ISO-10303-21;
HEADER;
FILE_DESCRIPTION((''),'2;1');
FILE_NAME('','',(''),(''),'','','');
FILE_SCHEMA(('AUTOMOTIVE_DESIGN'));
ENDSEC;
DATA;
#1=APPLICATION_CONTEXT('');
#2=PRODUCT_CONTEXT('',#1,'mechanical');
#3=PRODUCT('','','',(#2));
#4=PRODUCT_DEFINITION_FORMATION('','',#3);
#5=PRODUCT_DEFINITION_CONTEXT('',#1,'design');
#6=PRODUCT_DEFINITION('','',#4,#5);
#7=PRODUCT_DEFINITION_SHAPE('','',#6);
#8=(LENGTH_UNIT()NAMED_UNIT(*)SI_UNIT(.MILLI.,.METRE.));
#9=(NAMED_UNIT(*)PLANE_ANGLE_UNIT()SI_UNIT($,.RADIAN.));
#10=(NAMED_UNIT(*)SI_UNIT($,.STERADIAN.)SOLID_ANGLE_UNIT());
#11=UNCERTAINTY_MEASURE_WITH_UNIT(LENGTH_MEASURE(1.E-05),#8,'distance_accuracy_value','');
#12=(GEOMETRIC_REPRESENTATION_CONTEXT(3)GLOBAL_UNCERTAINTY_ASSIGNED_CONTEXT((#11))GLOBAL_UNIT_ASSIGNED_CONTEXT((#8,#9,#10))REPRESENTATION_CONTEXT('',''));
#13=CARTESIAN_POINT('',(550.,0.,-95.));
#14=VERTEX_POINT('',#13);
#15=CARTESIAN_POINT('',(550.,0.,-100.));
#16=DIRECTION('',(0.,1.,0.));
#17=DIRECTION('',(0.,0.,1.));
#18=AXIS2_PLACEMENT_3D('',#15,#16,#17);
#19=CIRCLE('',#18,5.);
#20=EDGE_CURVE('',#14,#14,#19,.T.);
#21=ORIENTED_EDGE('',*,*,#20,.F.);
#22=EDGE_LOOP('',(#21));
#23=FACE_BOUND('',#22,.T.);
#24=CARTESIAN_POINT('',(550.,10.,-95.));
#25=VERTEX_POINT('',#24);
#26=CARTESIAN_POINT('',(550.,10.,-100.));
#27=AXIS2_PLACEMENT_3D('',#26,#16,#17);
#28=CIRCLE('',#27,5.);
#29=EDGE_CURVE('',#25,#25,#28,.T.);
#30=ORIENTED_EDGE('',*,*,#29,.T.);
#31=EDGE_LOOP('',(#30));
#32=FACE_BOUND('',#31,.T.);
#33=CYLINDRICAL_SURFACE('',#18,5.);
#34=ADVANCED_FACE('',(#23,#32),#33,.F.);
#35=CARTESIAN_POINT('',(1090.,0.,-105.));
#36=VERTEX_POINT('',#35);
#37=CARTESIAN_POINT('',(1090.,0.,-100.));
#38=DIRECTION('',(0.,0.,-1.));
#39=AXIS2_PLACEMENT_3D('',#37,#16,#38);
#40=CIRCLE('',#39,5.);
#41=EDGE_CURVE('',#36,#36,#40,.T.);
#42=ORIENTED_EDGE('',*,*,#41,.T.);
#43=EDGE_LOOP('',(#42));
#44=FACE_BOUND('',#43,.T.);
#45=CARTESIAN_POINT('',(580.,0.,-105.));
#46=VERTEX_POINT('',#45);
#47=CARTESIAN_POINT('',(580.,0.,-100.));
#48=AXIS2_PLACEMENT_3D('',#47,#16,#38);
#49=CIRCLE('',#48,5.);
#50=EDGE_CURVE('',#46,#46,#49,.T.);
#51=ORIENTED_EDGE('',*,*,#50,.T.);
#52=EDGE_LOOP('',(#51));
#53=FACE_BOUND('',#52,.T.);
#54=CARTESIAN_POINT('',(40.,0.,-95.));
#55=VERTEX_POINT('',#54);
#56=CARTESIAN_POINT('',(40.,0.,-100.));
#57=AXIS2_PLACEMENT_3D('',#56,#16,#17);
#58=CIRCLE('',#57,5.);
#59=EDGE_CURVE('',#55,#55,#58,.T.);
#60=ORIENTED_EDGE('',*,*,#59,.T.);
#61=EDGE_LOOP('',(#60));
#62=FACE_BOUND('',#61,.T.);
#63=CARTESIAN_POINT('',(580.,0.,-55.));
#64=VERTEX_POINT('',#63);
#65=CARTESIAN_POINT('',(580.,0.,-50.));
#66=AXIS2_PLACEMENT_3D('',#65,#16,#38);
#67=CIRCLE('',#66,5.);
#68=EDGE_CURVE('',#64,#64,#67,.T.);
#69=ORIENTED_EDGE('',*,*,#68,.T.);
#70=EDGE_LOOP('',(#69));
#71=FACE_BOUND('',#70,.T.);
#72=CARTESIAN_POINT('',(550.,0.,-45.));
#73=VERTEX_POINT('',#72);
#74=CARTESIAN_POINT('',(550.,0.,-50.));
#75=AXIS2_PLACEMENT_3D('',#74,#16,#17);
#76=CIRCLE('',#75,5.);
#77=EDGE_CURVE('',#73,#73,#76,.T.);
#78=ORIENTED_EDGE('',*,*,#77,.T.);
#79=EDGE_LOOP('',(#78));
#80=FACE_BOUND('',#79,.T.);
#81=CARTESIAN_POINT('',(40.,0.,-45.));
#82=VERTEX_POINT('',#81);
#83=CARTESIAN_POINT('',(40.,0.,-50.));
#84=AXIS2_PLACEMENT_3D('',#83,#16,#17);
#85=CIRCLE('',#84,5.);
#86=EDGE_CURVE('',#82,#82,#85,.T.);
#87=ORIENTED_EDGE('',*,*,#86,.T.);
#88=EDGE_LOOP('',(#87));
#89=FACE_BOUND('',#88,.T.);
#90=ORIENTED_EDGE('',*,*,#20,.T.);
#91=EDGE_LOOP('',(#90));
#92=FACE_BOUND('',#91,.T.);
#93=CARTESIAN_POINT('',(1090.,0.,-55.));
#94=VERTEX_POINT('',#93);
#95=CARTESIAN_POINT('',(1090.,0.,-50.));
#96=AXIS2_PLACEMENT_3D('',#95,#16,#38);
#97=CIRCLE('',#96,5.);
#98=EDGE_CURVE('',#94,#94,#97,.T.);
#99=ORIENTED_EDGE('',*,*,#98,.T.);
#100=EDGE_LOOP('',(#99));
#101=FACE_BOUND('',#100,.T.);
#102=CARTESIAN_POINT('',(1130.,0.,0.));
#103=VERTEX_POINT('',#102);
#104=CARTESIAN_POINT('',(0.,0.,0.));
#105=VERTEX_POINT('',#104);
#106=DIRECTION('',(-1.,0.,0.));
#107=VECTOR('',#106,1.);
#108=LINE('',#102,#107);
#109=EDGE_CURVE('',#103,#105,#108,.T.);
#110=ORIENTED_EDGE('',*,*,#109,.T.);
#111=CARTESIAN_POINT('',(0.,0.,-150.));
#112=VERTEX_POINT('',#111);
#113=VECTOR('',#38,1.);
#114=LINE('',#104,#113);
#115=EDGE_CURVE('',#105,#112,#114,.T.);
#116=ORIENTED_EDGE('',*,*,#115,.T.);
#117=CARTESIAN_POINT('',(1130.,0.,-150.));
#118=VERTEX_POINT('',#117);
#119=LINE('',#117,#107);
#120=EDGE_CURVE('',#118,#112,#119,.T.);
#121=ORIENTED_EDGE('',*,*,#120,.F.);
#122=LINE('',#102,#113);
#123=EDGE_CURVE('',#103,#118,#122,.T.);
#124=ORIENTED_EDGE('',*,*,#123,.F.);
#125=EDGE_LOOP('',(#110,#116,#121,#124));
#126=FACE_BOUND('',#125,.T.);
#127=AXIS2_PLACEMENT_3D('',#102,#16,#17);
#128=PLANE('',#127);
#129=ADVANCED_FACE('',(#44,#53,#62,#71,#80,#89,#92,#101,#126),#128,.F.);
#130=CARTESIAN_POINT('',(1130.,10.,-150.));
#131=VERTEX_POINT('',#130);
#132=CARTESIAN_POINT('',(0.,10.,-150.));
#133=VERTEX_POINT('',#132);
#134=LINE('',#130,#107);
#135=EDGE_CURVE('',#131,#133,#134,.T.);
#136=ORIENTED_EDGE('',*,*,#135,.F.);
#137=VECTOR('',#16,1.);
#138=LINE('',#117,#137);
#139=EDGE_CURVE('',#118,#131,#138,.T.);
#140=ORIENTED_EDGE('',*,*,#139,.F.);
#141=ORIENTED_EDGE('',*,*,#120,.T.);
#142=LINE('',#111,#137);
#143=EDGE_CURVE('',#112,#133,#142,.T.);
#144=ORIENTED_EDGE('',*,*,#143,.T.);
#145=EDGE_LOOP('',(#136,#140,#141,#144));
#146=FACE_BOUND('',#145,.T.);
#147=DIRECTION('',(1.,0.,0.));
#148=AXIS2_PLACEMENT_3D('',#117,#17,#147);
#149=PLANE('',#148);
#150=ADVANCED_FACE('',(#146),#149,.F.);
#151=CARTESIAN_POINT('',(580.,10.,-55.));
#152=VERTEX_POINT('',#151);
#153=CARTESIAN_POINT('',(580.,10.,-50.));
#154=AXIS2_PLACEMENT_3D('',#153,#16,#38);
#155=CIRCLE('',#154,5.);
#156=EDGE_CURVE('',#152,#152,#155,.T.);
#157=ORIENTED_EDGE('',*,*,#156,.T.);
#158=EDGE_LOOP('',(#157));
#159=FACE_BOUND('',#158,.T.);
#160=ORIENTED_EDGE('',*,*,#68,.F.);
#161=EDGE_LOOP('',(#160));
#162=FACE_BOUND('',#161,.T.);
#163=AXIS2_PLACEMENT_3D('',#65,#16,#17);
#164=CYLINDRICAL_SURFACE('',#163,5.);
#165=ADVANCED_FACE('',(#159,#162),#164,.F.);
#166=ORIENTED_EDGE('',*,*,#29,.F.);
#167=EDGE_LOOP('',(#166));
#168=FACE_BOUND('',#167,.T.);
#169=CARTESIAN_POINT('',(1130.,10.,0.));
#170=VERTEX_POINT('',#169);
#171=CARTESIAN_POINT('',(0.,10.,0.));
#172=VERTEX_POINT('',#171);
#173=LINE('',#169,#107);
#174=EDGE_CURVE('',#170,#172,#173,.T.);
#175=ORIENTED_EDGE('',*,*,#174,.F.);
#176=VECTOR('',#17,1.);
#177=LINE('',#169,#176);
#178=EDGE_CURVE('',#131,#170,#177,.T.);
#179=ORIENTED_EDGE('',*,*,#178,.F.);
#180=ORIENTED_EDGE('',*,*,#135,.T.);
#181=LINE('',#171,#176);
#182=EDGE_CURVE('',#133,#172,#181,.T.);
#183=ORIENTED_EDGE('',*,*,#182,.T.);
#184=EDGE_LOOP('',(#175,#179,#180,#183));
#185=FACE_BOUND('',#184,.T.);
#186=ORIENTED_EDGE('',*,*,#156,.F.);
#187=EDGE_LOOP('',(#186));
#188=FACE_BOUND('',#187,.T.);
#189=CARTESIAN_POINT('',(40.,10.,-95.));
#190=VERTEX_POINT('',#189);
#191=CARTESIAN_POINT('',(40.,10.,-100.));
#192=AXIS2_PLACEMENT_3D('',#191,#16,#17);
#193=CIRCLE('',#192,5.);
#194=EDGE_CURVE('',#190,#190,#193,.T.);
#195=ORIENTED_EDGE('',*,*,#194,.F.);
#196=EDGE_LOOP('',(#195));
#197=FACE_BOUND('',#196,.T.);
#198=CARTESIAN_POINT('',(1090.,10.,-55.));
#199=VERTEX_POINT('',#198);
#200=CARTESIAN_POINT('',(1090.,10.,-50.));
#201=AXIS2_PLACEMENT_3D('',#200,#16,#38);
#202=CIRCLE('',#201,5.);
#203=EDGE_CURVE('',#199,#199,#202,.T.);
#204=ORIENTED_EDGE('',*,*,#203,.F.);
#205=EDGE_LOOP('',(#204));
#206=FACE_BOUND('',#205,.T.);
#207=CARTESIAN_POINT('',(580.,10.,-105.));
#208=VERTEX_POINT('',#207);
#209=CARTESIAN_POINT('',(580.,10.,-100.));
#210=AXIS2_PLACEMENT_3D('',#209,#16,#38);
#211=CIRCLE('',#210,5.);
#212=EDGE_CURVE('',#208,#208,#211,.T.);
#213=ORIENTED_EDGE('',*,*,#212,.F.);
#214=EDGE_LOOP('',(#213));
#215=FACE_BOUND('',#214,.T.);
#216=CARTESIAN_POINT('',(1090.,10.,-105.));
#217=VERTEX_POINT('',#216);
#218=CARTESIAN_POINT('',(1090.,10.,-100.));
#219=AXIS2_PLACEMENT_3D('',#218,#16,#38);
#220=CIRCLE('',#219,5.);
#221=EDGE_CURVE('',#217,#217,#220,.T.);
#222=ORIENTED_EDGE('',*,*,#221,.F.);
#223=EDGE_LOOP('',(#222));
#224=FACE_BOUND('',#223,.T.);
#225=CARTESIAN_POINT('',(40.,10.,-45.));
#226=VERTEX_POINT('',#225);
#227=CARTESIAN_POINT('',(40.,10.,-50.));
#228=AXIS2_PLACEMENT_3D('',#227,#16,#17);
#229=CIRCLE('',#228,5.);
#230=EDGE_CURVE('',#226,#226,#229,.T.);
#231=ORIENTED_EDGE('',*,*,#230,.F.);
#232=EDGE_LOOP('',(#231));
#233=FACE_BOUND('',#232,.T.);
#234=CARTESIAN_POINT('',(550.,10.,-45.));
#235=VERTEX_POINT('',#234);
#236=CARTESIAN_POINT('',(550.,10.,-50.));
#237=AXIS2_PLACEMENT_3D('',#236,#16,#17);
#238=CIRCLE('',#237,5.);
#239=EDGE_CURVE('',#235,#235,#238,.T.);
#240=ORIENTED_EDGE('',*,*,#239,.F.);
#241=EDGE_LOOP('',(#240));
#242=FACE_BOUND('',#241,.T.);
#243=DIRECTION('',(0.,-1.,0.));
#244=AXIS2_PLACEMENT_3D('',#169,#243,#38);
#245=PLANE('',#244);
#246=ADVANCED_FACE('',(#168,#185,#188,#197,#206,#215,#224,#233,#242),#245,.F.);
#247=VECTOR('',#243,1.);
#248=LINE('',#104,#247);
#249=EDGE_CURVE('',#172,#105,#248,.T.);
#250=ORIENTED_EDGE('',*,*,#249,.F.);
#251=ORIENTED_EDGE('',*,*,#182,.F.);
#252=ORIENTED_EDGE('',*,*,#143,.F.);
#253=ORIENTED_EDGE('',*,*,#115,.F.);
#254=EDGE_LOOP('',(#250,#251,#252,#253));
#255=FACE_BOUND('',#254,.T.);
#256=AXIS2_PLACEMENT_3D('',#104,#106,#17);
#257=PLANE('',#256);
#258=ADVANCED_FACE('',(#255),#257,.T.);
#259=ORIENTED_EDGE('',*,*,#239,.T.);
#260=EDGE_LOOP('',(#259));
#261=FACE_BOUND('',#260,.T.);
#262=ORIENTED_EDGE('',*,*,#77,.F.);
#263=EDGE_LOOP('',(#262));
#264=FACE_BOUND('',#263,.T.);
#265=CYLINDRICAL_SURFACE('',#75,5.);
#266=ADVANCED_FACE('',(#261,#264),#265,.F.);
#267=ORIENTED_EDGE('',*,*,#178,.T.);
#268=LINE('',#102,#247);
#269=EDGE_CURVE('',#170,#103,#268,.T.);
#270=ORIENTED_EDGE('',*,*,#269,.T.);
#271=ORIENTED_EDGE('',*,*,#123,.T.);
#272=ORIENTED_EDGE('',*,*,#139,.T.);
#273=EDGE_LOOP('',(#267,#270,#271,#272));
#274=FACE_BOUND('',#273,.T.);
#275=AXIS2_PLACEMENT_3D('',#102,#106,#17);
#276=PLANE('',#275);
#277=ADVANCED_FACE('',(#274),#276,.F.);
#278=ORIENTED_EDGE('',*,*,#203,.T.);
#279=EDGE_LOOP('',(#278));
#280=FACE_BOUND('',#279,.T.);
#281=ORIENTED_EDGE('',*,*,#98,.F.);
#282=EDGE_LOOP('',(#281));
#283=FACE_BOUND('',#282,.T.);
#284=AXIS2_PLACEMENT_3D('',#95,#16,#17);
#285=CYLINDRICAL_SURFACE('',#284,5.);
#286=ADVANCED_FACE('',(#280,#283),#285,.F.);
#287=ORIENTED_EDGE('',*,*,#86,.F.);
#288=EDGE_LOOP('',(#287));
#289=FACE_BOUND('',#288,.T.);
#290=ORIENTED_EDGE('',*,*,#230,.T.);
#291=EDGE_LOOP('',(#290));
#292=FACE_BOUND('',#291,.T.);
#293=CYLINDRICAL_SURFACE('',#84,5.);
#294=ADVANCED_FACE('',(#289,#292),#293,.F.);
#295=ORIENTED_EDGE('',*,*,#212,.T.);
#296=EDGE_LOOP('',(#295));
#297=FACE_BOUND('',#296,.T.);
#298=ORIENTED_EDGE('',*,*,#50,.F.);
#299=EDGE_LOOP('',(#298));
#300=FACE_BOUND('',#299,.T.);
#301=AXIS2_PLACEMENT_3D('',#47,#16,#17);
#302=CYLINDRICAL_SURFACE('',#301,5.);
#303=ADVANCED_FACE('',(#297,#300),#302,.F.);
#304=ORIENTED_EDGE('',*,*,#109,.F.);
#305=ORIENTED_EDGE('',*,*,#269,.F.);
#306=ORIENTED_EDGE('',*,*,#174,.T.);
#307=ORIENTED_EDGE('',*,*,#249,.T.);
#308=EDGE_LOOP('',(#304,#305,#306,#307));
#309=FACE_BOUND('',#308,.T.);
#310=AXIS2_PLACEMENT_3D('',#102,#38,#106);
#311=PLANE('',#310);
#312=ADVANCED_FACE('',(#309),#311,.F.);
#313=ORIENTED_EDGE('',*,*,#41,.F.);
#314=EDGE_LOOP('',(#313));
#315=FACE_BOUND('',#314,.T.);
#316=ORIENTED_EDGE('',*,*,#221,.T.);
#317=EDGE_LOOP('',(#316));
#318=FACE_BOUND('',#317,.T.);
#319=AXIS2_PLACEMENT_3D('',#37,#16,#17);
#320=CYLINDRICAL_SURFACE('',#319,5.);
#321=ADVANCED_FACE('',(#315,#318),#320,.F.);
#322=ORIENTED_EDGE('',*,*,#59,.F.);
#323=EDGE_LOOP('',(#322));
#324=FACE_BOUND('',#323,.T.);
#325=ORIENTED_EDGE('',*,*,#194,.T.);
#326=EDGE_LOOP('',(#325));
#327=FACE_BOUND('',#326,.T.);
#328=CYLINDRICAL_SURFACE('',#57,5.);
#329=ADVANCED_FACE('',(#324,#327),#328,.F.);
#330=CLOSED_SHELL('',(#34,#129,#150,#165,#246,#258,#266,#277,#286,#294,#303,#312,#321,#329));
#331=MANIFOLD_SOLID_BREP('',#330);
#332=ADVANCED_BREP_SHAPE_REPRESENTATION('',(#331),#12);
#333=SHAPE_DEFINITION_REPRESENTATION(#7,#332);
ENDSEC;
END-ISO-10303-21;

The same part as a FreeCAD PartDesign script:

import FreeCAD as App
import Part
import Sketcher


def add_polygon(sketch, points):
    """Adds a closed chain of lines whose ends are joined by coincident constraints."""
    first, n = sketch.GeometryCount, len(points)
    for a, b in zip(points, points[1:] + points[:1]):
        sketch.addGeometry(Part.LineSegment(App.Vector(*a, 0), App.Vector(*b, 0)), False)
    for i in range(n):
        sketch.addConstraint(Sketcher.Constraint("Coincident", first + i, 2, first + (i + 1) % n, 1))

doc = App.newDocument("Part")
body = doc.addObject("PartDesign::Body", "Body")

# Sketch on YZ plane
sketch1 = doc.addObject("Sketcher::SketchObject", "Sketch")
body.addObject(sketch1)
sketch1.AttachmentSupport = (doc.YZ_Plane, [""])
sketch1.MapMode = "FlatFace"
add_polygon(sketch1, [(10, 0), (0, 0), (0, -150), (10, -150)])  # lines 0-3
sketch1.addConstraint([
    Sketcher.Constraint("Horizontal", 0),
    Sketcher.Constraint("Vertical", 1),
    Sketcher.Constraint("Horizontal", 2),
    Sketcher.Constraint("Vertical", 3),
    Sketcher.Constraint("Coincident", 0, 2, -1, 1),
    Sketcher.Constraint("DistanceX", 0, 2, 0, 1, 10.0),
    Sketcher.Constraint("DistanceY", 1, 2, 1, 1, 150.0),
])
pad1 = doc.addObject("PartDesign::Pad", "Pad")
body.addObject(pad1)
pad1.Profile = sketch1
pad1.Length = 1130

# Sketch on XZ plane
sketch2 = doc.addObject("Sketcher::SketchObject", "Sketch001")
body.addObject(sketch2)
sketch2.AttachmentSupport = (doc.XZ_Plane, [""])
sketch2.MapMode = "FlatFace"
sketch2.AttachmentOffset = App.Placement(App.Vector(0, 0, -10), App.Rotation())
sketch2.addGeometry([
    Part.Circle(App.Vector(40, -50, 0), App.Vector(0, 0, 1), 5),  # 0
    Part.Circle(App.Vector(550, -50, 0), App.Vector(0, 0, 1), 5),  # 1
    Part.Circle(App.Vector(550, -100, 0), App.Vector(0, 0, 1), 5),  # 2
    Part.Circle(App.Vector(40, -100, 0), App.Vector(0, 0, 1), 5),  # 3
    Part.Circle(App.Vector(1090, -100, 0), App.Vector(0, 0, 1), 5),  # 4
    Part.Circle(App.Vector(580, -100, 0), App.Vector(0, 0, 1), 5),  # 5
    Part.Circle(App.Vector(580, -50, 0), App.Vector(0, 0, 1), 5),  # 6
    Part.Circle(App.Vector(1090, -50, 0), App.Vector(0, 0, 1), 5),  # 7
], False)
sketch2.addConstraint([
    Sketcher.Constraint("Equal", 0, 1),
    Sketcher.Constraint("Equal", 1, 2),
    Sketcher.Constraint("Equal", 2, 3),
    Sketcher.Constraint("Equal", 3, 4),
    Sketcher.Constraint("Equal", 4, 5),
    Sketcher.Constraint("Equal", 5, 6),
    Sketcher.Constraint("Equal", 6, 7),
    Sketcher.Constraint("Horizontal", 0, 3, 1, 3),
    Sketcher.Constraint("Horizontal", 2, 3, 3, 3),
    Sketcher.Constraint("Horizontal", 3, 3, 4, 3),
    Sketcher.Constraint("Horizontal", 4, 3, 5, 3),
    Sketcher.Constraint("Horizontal", 1, 3, 6, 3),
    Sketcher.Constraint("Horizontal", 6, 3, 7, 3),
    Sketcher.Constraint("Vertical", 1, 3, 2, 3),
    Sketcher.Constraint("Vertical", 0, 3, 3, 3),
    Sketcher.Constraint("Vertical", 5, 3, 6, 3),
    Sketcher.Constraint("Vertical", 4, 3, 7, 3),
    Sketcher.Constraint("Diameter", 0, 10.0),
    Sketcher.Constraint("DistanceX", -1, 1, 0, 3, 40.0),
    Sketcher.Constraint("DistanceY", 0, 3, -1, 1, 50.0),
    Sketcher.Constraint("DistanceX", -1, 1, 1, 3, 550.0),
    Sketcher.Constraint("DistanceY", 2, 3, -1, 1, 100.0),
    Sketcher.Constraint("DistanceX", -1, 1, 4, 3, 1090.0),
    Sketcher.Constraint("DistanceX", -1, 1, 5, 3, 580.0),
])
pocket1 = doc.addObject("PartDesign::Pocket", "Pocket")
body.addObject(pocket1)
pocket1.Profile = sketch2
pocket1.Type = "ThroughAll"
pocket1.Reversed = True

doc.recompute()
